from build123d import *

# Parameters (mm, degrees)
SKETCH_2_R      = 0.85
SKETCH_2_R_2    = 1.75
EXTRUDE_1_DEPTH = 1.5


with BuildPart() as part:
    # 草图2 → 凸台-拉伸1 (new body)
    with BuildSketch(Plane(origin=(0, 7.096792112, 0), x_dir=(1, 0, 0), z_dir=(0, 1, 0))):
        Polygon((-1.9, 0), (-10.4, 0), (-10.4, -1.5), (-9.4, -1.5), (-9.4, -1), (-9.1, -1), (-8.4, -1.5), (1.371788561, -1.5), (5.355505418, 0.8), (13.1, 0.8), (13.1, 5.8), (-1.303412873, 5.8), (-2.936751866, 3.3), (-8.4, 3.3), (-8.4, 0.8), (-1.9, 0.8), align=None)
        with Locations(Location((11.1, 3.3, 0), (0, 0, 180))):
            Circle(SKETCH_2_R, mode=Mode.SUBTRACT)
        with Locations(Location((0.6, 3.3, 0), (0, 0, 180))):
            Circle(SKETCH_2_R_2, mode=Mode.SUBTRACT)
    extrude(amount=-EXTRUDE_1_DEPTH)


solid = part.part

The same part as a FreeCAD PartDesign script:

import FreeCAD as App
import Part
import Sketcher
from FreeCAD import Vector
Q = App.Units.Quantity

doc = App.newDocument("Part")
params = doc.addObject("Spreadsheet::Sheet", "Params")
for row, (alias, value) in enumerate([
    ("sketch1_diameter", "3.5 mm"),
    ("sketch1_diameter2", "1.7 mm"),
    ("sketch1_width", "1 mm"),
    ("sketch1_height", "5 mm"),
    ("sketch1_width2", "8.5 mm"),
    ("pad1_length", "1.5 mm"),
], start=1):
    params.set(f"A{row}", alias)
    params.set(f"B{row}", "=" + value)
    params.setAlias(f"B{row}", alias)

body = doc.addObject("PartDesign::Body", "Body")

sketch1 = body.newObject("Sketcher::SketchObject", "Sketch")
sketch1.AttachmentSupport = (doc.getObject("XZ_Plane"), [""])
sketch1.MapMode = "FlatFace"
sketch1.AttachmentOffset = App.Placement(Vector(0, 0, -7.096792), App.Rotation())
sketch1.addGeometry([
    Part.LineSegment(Vector(-1.9, 0, 0), Vector(-10.4, 0, 0)),
    Part.LineSegment(Vector(-10.4, 0, 0), Vector(-10.4, 1.5, 0)),
    Part.LineSegment(Vector(-10.4, 1.5, 0), Vector(-9.4, 1.5, 0)),
    Part.LineSegment(Vector(-9.4, 1.5, 0), Vector(-9.4, 1, 0)),
    Part.LineSegment(Vector(-9.4, 1, 0), Vector(-9.1, 1, 0)),
    Part.LineSegment(Vector(-9.1, 1, 0), Vector(-8.4, 1.5, 0)),
    Part.LineSegment(Vector(-8.4, 1.5, 0), Vector(1.37, 1.5, 0)),
    Part.LineSegment(Vector(1.37, 1.5, 0), Vector(5.36, -0.8, 0)),
    Part.LineSegment(Vector(5.36, -0.8, 0), Vector(13.1, -0.8, 0)),
    Part.LineSegment(Vector(13.1, -0.8, 0), Vector(13.1, -5.8, 0)),
    Part.LineSegment(Vector(13.1, -5.8, 0), Vector(-1.3, -5.8, 0)),
    Part.LineSegment(Vector(-1.3, -5.8, 0), Vector(-2.94, -3.3, 0)),
    Part.LineSegment(Vector(-2.94, -3.3, 0), Vector(-8.4, -3.3, 0)),
    Part.LineSegment(Vector(-8.4, -3.3, 0), Vector(-8.4, -0.8, 0)),
    Part.LineSegment(Vector(-8.4, -0.8, 0), Vector(-1.9, -0.8, 0)),
    Part.LineSegment(Vector(-1.9, -0.8, 0), Vector(-1.9, 0, 0)),
    Part.Circle(Vector(0.6, -3.3, 0), Vector(0, 0, 1), 1.75),
    Part.Circle(Vector(11.1, -3.3, 0), Vector(0, 0, 1), 0.85),
], False)
sketch1.addConstraint([
    Sketcher.Constraint("Coincident", 0, 2, 1, 1),
    Sketcher.Constraint("Coincident", 1, 2, 2, 1),
    Sketcher.Constraint("Coincident", 2, 2, 3, 1),
    Sketcher.Constraint("Coincident", 3, 2, 4, 1),
    Sketcher.Constraint("Coincident", 4, 2, 5, 1),
    Sketcher.Constraint("Coincident", 5, 2, 6, 1),
    Sketcher.Constraint("Coincident", 6, 2, 7, 1),
    Sketcher.Constraint("Coincident", 7, 2, 8, 1),
    Sketcher.Constraint("Coincident", 8, 2, 9, 1),
    Sketcher.Constraint("Coincident", 9, 2, 10, 1),
    Sketcher.Constraint("Coincident", 10, 2, 11, 1),
    Sketcher.Constraint("Coincident", 11, 2, 12, 1),
    Sketcher.Constraint("Coincident", 12, 2, 13, 1),
    Sketcher.Constraint("Coincident", 13, 2, 14, 1),
    Sketcher.Constraint("Coincident", 14, 2, 15, 1),
    Sketcher.Constraint("Coincident", 15, 2, 0, 1),
    Sketcher.Constraint("Horizontal", 0),
    Sketcher.Constraint("Vertical", 1),
    Sketcher.Constraint("Horizontal", 2),
    Sketcher.Constraint("Vertical", 3),
    Sketcher.Constraint("Horizontal", 4),
    Sketcher.Constraint("Horizontal", 6),
    Sketcher.Constraint("Horizontal", 8),
    Sketcher.Constraint("Vertical", 9),
    Sketcher.Constraint("Horizontal", 10),
    Sketcher.Constraint("Horizontal", 12),
    Sketcher.Constraint("Vertical", 13),
    Sketcher.Constraint("Horizontal", 14),
    Sketcher.Constraint("Vertical", 15),
    Sketcher.Constraint("PointOnObject", 0, 2, -1),
    Sketcher.Constraint("Horizontal", 16, 3, 17, 3),
    Sketcher.Constraint("Horizontal", 2, 2, 5, 2),
    Sketcher.Constraint("Horizontal", 17, 3, 11, 2),
    Sketcher.Constraint("Horizontal", 8, 2, 13, 2),
    Sketcher.Constraint("Vertical", 5, 2, 12, 2),
    Sketcher.Constraint("Diameter", 16, Q("3.5 mm")),
    Sketcher.Constraint("Diameter", 17, Q("1.7 mm")),
    Sketcher.Constraint("DistanceX", 2, 1, 2, 2, Q("1 mm")),
    Sketcher.Constraint("DistanceY", 9, 2, 9, 1, Q("5 mm")),
    Sketcher.Constraint("Angle", 7, Q("-30 deg")),
    Sketcher.Constraint("DistanceX", 0, 2, 0, 1, Q("8.5 mm")),
    Sketcher.Constraint("DistanceX", 4, 1, 4, 2, Q("0.3 mm")),
    Sketcher.Constraint("DistanceX", 14, 1, 14, 2, Q("6.5 mm")),
    Sketcher.Constraint("DistanceY", 1, 1, 1, 2, Q("1.5 mm")),
    Sketcher.Constraint("DistanceY", 3, 2, 3, 1, Q("0.5 mm")),
    Sketcher.Constraint("DistanceY", 13, 1, 13, 2, Q("2.5 mm")),
    Sketcher.Constraint("DistanceY", 15, 1, 15, 2, Q("0.8 mm")),
    Sketcher.Constraint("DistanceX", 0, 2, 16, 3, Q("11 mm")),
    Sketcher.Constraint("DistanceX", 17, 3, 8, 2, Q("2 mm")),
    Sketcher.Constraint("DistanceX", -1, 1, 16, 3, Q("0.6 mm")),
    Sketcher.Constraint("DistanceX", -1, 1, 17, 3, Q("11.1 mm")),
    Sketcher.Constraint("DistanceX", 6, 1, 6, 2, Q("9.771789 mm")),
    Sketcher.Constraint("DistanceX", 12, 2, 12, 1, Q("5.463248 mm")),
    Sketcher.Constraint("DistanceX", 10, 2, 6, 2, Q("2.675201 mm")),
])
sketch1.setExpression("Constraints[35]", "Params.sketch1_diameter")
sketch1.setExpression("Constraints[36]", "Params.sketch1_diameter2")
sketch1.setExpression("Constraints[37]", "Params.sketch1_width")
sketch1.setExpression("Constraints[38]", "Params.sketch1_height")
sketch1.setExpression("Constraints[40]", "Params.sketch1_width2")
pad1 = body.newObject("PartDesign::Pad", "Pad")
pad1.Profile = sketch1
pad1.setExpression("Length", "Params.pad1_length")

doc.recompute()
